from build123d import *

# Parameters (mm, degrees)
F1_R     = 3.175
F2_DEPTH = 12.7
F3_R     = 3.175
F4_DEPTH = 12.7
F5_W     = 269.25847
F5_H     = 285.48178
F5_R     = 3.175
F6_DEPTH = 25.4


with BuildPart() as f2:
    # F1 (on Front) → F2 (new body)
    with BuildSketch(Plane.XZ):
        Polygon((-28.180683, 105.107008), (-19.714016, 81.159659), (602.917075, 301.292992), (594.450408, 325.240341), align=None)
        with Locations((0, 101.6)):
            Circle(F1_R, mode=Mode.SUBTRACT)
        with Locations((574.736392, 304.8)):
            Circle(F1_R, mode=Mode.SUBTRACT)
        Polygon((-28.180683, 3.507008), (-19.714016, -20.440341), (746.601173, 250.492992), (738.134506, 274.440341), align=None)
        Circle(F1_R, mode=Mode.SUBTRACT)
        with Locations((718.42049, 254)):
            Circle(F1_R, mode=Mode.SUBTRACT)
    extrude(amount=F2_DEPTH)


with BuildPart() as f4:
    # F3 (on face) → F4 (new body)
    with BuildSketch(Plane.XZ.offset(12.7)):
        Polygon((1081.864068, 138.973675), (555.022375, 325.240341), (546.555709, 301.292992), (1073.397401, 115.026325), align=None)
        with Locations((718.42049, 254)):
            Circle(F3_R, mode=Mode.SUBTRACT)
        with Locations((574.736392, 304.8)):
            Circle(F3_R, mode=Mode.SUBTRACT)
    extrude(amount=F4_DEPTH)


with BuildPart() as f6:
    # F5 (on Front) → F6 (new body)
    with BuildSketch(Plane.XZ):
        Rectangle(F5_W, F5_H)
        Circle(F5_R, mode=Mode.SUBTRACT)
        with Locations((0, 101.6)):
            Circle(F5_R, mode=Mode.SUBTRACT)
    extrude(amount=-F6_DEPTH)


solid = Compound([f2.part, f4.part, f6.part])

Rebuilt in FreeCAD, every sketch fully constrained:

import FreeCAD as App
import Part
import Sketcher
Q = App.Units.Quantity

doc = App.newDocument("Part")
body = doc.addObject("PartDesign::Body", "Body")
body.AllowCompound = True

sketch1 = body.newObject("Sketcher::SketchObject", "Sketch")
sketch1.AttachmentSupport = (doc.getObject("XZ_Plane"), [""])
sketch1.MapMode = "FlatFace"
sketch1.addGeometry(Part.LineSegment(App.Vector(-28.2, 105.1, 0), App.Vector(-19.7, 81.2, 0)), False)
sketch1.addGeometry(Part.LineSegment(App.Vector(-19.7, 81.2, 0), App.Vector(602.9, 301.3, 0)), False)
sketch1.addGeometry(Part.LineSegment(App.Vector(602.9, 301.3, 0), App.Vector(594.5, 325.2, 0)), False)
sketch1.addGeometry(Part.LineSegment(App.Vector(594.5, 325.2, 0), App.Vector(-28.2, 105.1, 0)), False)
sketch1.addGeometry(Part.Circle(App.Vector(0, 101.6, 0), App.Vector(0, 0, 1), 3.2), False)
sketch1.addGeometry(Part.Circle(App.Vector(574.7, 304.8, 0), App.Vector(0, 0, 1), 3.2), False)
sketch1.addGeometry(Part.LineSegment(App.Vector(-28.2, 3.5, 0), App.Vector(-19.7, -20.4, 0)), False)
sketch1.addGeometry(Part.LineSegment(App.Vector(-19.7, -20.4, 0), App.Vector(746.6, 250.5, 0)), False)
sketch1.addGeometry(Part.LineSegment(App.Vector(746.6, 250.5, 0), App.Vector(738.1, 274.4, 0)), False)
sketch1.addGeometry(Part.LineSegment(App.Vector(738.1, 274.4, 0), App.Vector(-28.2, 3.5, 0)), False)
sketch1.addGeometry(Part.Circle(App.Vector(0, 0, 0), App.Vector(0, 0, 1), 3.2), False)
sketch1.addGeometry(Part.Circle(App.Vector(718.4, 254, 0), App.Vector(0, 0, 1), 3.2), False)
sketch1.addConstraint(Sketcher.Constraint("Coincident", 0, 2, 1, 1))
sketch1.addConstraint(Sketcher.Constraint("Coincident", 1, 2, 2, 1))
sketch1.addConstraint(Sketcher.Constraint("Coincident", 2, 2, 3, 1))
sketch1.addConstraint(Sketcher.Constraint("Coincident", 3, 2, 0, 1))
sketch1.addConstraint(Sketcher.Constraint("Coincident", 6, 2, 7, 1))
sketch1.addConstraint(Sketcher.Constraint("Coincident", 7, 2, 8, 1))
sketch1.addConstraint(Sketcher.Constraint("Coincident", 8, 2, 9, 1))
sketch1.addConstraint(Sketcher.Constraint("Coincident", 9, 2, 6, 1))
sketch1.addConstraint(Sketcher.Constraint("Coincident", 10, 3, -1, 1))
sketch1.addConstraint(Sketcher.Constraint("Equal", 4, 5))
sketch1.addConstraint(Sketcher.Constraint("Equal", 5, 10))
sketch1.addConstraint(Sketcher.Constraint("Equal", 10, 11))
sketch1.addConstraint(Sketcher.Constraint("PointOnObject", 4, 3, -2))
sketch1.addConstraint(Sketcher.Constraint("Perpendicular", 0, 1))
sketch1.addConstraint(Sketcher.Constraint("Perpendicular", 1, 2))
sketch1.addConstraint(Sketcher.Constraint("Perpendicular", 2, 3))
sketch1.addConstraint(Sketcher.Constraint("Perpendicular", 3, 6))
sketch1.addConstraint(Sketcher.Constraint("Perpendicular", 6, 7))
sketch1.addConstraint(Sketcher.Constraint("Perpendicular", 7, 8))
sketch1.addConstraint(Sketcher.Constraint("Perpendicular", 8, 9))
sketch1.addConstraint(Sketcher.Constraint("Vertical", 0, 2, 6, 2))
sketch1.addConstraint(Sketcher.Constraint("Vertical", 3, 2, 9, 2))
sketch1.addConstraint(Sketcher.Constraint("Diameter", 4, Q("0.25 in")))
sketch1.addConstraint(Sketcher.Constraint("Distance", 0, Q("1 in")))
sketch1.addConstraint(Sketcher.Constraint("Distance", 1, Q("26 in")))
sketch1.addConstraint(Sketcher.Constraint("Distance", 7, Q("32 in")))
sketch1.addConstraint(Sketcher.Constraint("DistanceY", -1, 1, 4, 3, Q("4 in")))
sketch1.addConstraint(Sketcher.Constraint("DistanceY", -1, 1, 5, 3, Q("12 in")))
sketch1.addConstraint(Sketcher.Constraint("DistanceY", -1, 1, 11, 3, Q("10 in")))
sketch1.addConstraint(Sketcher.Constraint("DistanceY", 6, 2, 0, 2, Q("4 in")))
sketch1.addConstraint(Sketcher.Constraint("DistanceY", 7, 2, 1, 2, Q("2 in")))
sketch1.addConstraint(Sketcher.Constraint("DistanceX", -1, 1, 5, 3, 574.736392))
sketch1.addConstraint(Sketcher.Constraint("DistanceX", -1, 1, 11, 3, 718.42049))
sketch1.addConstraint(Sketcher.Constraint("DistanceY", -1, 1, 0, 2, 81.159659))
sketch1.addConstraint(Sketcher.Constraint("DistanceX", -1, 1, 2, 2, 594.450408))
pad1 = body.newObject("PartDesign::Pad", "Pad")
pad1.Profile = sketch1
pad1.Length = Q("0.5 in")
body2 = doc.addObject("PartDesign::Body", "Body001")

sketch2 = body2.newObject("Sketcher::SketchObject", "Sketch001")
sketch2.AttachmentSupport = (doc.getObject("XZ_Plane001"), [""])
sketch2.MapMode = "FlatFace"
sketch2.AttachmentOffset = App.Placement(App.Vector(0, 0, 0.5 * 25.4), App.Rotation())
sketch2.addGeometry(Part.LineSegment(App.Vector(1081.9, 139, 0), App.Vector(555, 325.2, 0)), False)
sketch2.addGeometry(Part.LineSegment(App.Vector(555, 325.2, 0), App.Vector(546.6, 301.3, 0)), False)
sketch2.addGeometry(Part.LineSegment(App.Vector(546.6, 301.3, 0), App.Vector(1073.4, 115, 0)), False)
sketch2.addGeometry(Part.LineSegment(App.Vector(1073.4, 115, 0), App.Vector(1081.9, 139, 0)), False)
sketch2.addGeometry(Part.Circle(App.Vector(718.4, 254, 0), App.Vector(0, 0, 1), 3.2), False)
sketch2.addGeometry(Part.Circle(App.Vector(574.7, 304.8, 0), App.Vector(0, 0, 1), 3.2), False)
sketch2.addConstraint(Sketcher.Constraint("Coincident", 0, 2, 1, 1))
sketch2.addConstraint(Sketcher.Constraint("Coincident", 1, 2, 2, 1))
sketch2.addConstraint(Sketcher.Constraint("Coincident", 2, 2, 3, 1))
sketch2.addConstraint(Sketcher.Constraint("Coincident", 3, 2, 0, 1))
sketch2.addConstraint(Sketcher.Constraint("Equal", 4, 5))
sketch2.addConstraint(Sketcher.Constraint("Perpendicular", 0, 1))
sketch2.addConstraint(Sketcher.Constraint("Perpendicular", 1, 2))
sketch2.addConstraint(Sketcher.Constraint("Perpendicular", 2, 3))
sketch2.addConstraint(Sketcher.Constraint("Diameter", 4, Q("0.25 in")))
sketch2.addConstraint(Sketcher.Constraint("Distance", 0, Q("22 in")))
sketch2.addConstraint(Sketcher.Constraint("Distance", 1, Q("1 in")))
sketch2.addConstraint(Sketcher.Constraint("DistanceY", -1, 1, 4, 3, Q("10 in")))
sketch2.addConstraint(Sketcher.Constraint("DistanceY", -1, 1, 5, 3, Q("12 in")))
sketch2.addConstraint(Sketcher.Constraint("DistanceX", -1, 1, 2, 2, 1073.397401))
sketch2.addConstraint(Sketcher.Constraint("DistanceX", -1, 1, 4, 3, 718.42049))
sketch2.addConstraint(Sketcher.Constraint("DistanceX", -1, 1, 5, 3, 574.736392))
sketch2.addConstraint(Sketcher.Constraint("DistanceY", -1, 1, 0, 2, 325.240341))
sketch2.addConstraint(Sketcher.Constraint("DistanceX", -1, 1, 1, 2, 546.555709))
pad2 = body2.newObject("PartDesign::Pad", "Pad001")
pad2.Profile = sketch2
pad2.Length = Q("0.5 in")
body3 = doc.addObject("PartDesign::Body", "Body002")

sketch3 = body3.newObject("Sketcher::SketchObject", "Sketch002")
sketch3.AttachmentSupport = (doc.getObject("XZ_Plane002"), [""])
sketch3.MapMode = "FlatFace"
sketch3.addGeometry(Part.LineSegment(App.Vector(-134.6, 142.7, 0), App.Vector(-134.6, -142.7, 0)), False)
sketch3.addGeometry(Part.LineSegment(App.Vector(-134.6, -142.7, 0), App.Vector(134.6, -142.7, 0)), False)
sketch3.addGeometry(Part.LineSegment(App.Vector(134.6, -142.7, 0), App.Vector(134.6, 142.7, 0)), False)
sketch3.addGeometry(Part.LineSegment(App.Vector(134.6, 142.7, 0), App.Vector(-134.6, 142.7, 0)), False)
sketch3.addGeometry(Part.Circle(App.Vector(0, 0, 0), App.Vector(0, 0, 1), 3.2), False)
sketch3.addGeometry(Part.Circle(App.Vector(0, 101.6, 0), App.Vector(0, 0, 1), 3.2), False)
sketch3.addConstraint(Sketcher.Constraint("Coincident", 0, 2, 1, 1))
sketch3.addConstraint(Sketcher.Constraint("Coincident", 1, 2, 2, 1))
sketch3.addConstraint(Sketcher.Constraint("Coincident", 2, 2, 3, 1))
sketch3.addConstraint(Sketcher.Constraint("Coincident", 3, 2, 0, 1))
sketch3.addConstraint(Sketcher.Constraint("Vertical", 0))
sketch3.addConstraint(Sketcher.Constraint("Horizontal", 1))
sketch3.addConstraint(Sketcher.Constraint("Vertical", 2))
sketch3.addConstraint(Sketcher.Constraint("Horizontal", 3))
sketch3.addConstraint(Sketcher.Constraint("Coincident", 4, 3, -1, 1))
sketch3.addConstraint(Sketcher.Constraint("Equal", 4, 5))
sketch3.addConstraint(Sketcher.Constraint("Symmetric", 0, 2, 2, 2, -1, 1))
sketch3.addConstraint(Sketcher.Constraint("PointOnObject", 5, 3, -2))
sketch3.addConstraint(Sketcher.Constraint("Diameter", 4, Q("0.25 in")))
sketch3.addConstraint(Sketcher.Constraint("DistanceY", -1, 1, 5, 3, Q("4 in")))
sketch3.addConstraint(Sketcher.Constraint("DistanceX", 1, 1, 1, 2, 269.25847))
sketch3.addConstraint(Sketcher.Constraint("DistanceY", 0, 2, 0, 1, 285.48178))
pad3 = body3.newObject("PartDesign::Pad", "Pad002")
pad3.Profile = sketch3
pad3.Length = Q("1 in")
pad3.Reversed = True

doc.recompute()
